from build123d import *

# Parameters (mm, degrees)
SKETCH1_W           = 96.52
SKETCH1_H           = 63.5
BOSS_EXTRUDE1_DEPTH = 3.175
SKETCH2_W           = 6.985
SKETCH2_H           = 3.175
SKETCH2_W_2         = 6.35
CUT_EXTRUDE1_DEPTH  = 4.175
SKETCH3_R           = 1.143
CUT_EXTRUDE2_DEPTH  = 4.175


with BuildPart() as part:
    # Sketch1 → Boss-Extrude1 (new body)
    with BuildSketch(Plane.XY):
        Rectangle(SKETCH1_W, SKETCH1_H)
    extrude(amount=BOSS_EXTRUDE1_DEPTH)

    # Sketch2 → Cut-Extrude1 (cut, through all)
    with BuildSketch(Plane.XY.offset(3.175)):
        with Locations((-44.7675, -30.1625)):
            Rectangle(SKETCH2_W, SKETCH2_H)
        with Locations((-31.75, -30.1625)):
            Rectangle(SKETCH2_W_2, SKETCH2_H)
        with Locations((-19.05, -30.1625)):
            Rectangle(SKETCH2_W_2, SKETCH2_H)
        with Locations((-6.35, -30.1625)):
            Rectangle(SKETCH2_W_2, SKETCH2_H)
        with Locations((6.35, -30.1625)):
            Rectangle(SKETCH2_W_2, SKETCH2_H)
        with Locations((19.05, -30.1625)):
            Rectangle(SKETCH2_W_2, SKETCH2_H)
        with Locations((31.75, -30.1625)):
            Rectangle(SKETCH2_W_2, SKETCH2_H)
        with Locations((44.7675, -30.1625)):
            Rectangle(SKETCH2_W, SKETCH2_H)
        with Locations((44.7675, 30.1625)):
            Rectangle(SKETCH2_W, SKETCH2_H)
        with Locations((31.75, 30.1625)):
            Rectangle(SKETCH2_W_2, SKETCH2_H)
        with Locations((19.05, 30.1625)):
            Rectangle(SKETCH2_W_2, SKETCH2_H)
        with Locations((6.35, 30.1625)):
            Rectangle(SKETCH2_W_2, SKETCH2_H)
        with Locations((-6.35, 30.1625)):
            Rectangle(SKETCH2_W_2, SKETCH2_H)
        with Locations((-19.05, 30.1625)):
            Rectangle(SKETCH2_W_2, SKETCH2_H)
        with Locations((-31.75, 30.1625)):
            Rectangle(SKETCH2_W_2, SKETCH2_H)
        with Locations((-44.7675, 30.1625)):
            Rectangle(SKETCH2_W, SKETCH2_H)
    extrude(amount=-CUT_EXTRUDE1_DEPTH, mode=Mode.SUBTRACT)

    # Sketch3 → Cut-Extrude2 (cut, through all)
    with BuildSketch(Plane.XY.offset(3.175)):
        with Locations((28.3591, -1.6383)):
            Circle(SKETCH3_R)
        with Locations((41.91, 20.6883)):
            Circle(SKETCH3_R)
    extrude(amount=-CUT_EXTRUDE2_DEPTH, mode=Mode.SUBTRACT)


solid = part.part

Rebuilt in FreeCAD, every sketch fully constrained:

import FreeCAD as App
import Part
import Sketcher
from FreeCAD import Vector
Q = App.Units.Quantity


def add_polygon(sketch, points):
    """Adds a closed chain of lines whose ends are joined by coincident constraints."""
    first, n = sketch.GeometryCount, len(points)
    for a, b in zip(points, points[1:] + points[:1]):
        sketch.addGeometry(Part.LineSegment(App.Vector(*a, 0), App.Vector(*b, 0)), False)
    for i in range(n):
        sketch.addConstraint(Sketcher.Constraint("Coincident", first + i, 2, first + (i + 1) % n, 1))

doc = App.newDocument("Part")
body = doc.addObject("PartDesign::Body", "Body")

# Sketch on XY plane
sketch1 = doc.addObject("Sketcher::SketchObject", "Sketch")
body.addObject(sketch1)
sketch1.AttachmentSupport = (doc.XY_Plane, [""])
sketch1.MapMode = "FlatFace"
add_polygon(sketch1, [(-48.26, 31.75), (-48.26, -31.75), (48.26, -31.75), (48.26, 31.75)])  # lines 0-3
sketch1.addConstraint(Sketcher.Constraint("Vertical", 0))
sketch1.addConstraint(Sketcher.Constraint("Horizontal", 1))
sketch1.addConstraint(Sketcher.Constraint("Vertical", 2))
sketch1.addConstraint(Sketcher.Constraint("Horizontal", 3))
sketch1.addConstraint(Sketcher.Constraint("Symmetric", 0, 2, 2, 2, -1, 1))
sketch1.addConstraint(Sketcher.Constraint("DistanceX", 1, 1, 1, 2, Q("3.8 in")))
sketch1.addConstraint(Sketcher.Constraint("DistanceY", 0, 2, 0, 1, Q("2.5 in")))
pad1 = doc.addObject("PartDesign::Pad", "Pad")
body.addObject(pad1)
pad1.Profile = sketch1
pad1.Length = Q("0.125 in")

# Sketch on XY plane
sketch2 = doc.addObject("Sketcher::SketchObject", "Sketch001")
body.addObject(sketch2)
sketch2.AttachmentSupport = (doc.XY_Plane, [""])
sketch2.MapMode = "FlatFace"
sketch2.AttachmentOffset = App.Placement(Vector(0, 0, 0.125 * 25.4), App.Rotation())
add_polygon(sketch2, [(-48.26, -28.575), (-48.26, -31.75), (-41.275, -31.75), (-41.275, -28.575)])  # lines 0-3
add_polygon(sketch2, [(-34.925, -28.575), (-34.925, -31.75), (-28.575, -31.75), (-28.575, -28.575)])  # lines 4-7
add_polygon(sketch2, [(-22.225, -28.575), (-22.225, -31.75), (-15.875, -31.75), (-15.875, -28.575)])  # lines 8-11
add_polygon(sketch2, [(-9.525, -28.575), (-9.525, -31.75), (-3.175, -31.75), (-3.175, -28.575)])  # lines 12-15
add_polygon(sketch2, [(3.175, -28.575), (3.175, -31.75), (9.525, -31.75), (9.525, -28.575)])  # lines 16-19
add_polygon(sketch2, [(15.875, -28.575), (15.875, -31.75), (22.225, -31.75), (22.225, -28.575)])  # lines 20-23
add_polygon(sketch2, [(28.575, -28.575), (28.575, -31.75), (34.925, -31.75), (34.925, -28.575)])  # lines 24-27
add_polygon(sketch2, [(41.275, -28.575), (41.275, -31.75), (48.26, -31.75), (48.26, -28.575)])  # lines 28-31
add_polygon(sketch2, [(41.275, 31.75), (41.275, 28.575), (48.26, 28.575), (48.26, 31.75)])  # lines 32-35
add_polygon(sketch2, [(28.575, 31.75), (28.575, 28.575), (34.925, 28.575), (34.925, 31.75)])  # lines 36-39
add_polygon(sketch2, [(15.875, 31.75), (15.875, 28.575), (22.225, 28.575), (22.225, 31.75)])  # lines 40-43
add_polygon(sketch2, [(3.175, 31.75), (3.175, 28.575), (9.525, 28.575), (9.525, 31.75)])  # lines 44-47
add_polygon(sketch2, [(-9.525, 31.75), (-9.525, 28.575), (-3.175, 28.575), (-3.175, 31.75)])  # lines 48-51
add_polygon(sketch2, [(-22.225, 31.75), (-22.225, 28.575), (-15.875, 28.575), (-15.875, 31.75)])  # lines 52-55
add_polygon(sketch2, [(-34.925, 31.75), (-34.925, 28.575), (-28.575, 28.575), (-28.575, 31.75)])  # lines 56-59
add_polygon(sketch2, [(-48.26, 31.75), (-48.26, 28.575), (-41.275, 28.575), (-41.275, 31.75)])  # lines 60-63
sketch2.addConstraint(Sketcher.Constraint("Vertical", 0))
sketch2.addConstraint(Sketcher.Constraint("Horizontal", 1))
sketch2.addConstraint(Sketcher.Constraint("Vertical", 2))
sketch2.addConstraint(Sketcher.Constraint("Horizontal", 3))
sketch2.addConstraint(Sketcher.Constraint("Vertical", 4))
sketch2.addConstraint(Sketcher.Constraint("Horizontal", 5))
sketch2.addConstraint(Sketcher.Constraint("Vertical", 6))
sketch2.addConstraint(Sketcher.Constraint("Horizontal", 7))
sketch2.addConstraint(Sketcher.Constraint("Vertical", 8))
sketch2.addConstraint(Sketcher.Constraint("Horizontal", 9))
sketch2.addConstraint(Sketcher.Constraint("Vertical", 10))
sketch2.addConstraint(Sketcher.Constraint("Horizontal", 11))
sketch2.addConstraint(Sketcher.Constraint("Vertical", 12))
sketch2.addConstraint(Sketcher.Constraint("Horizontal", 13))
sketch2.addConstraint(Sketcher.Constraint("Vertical", 14))
sketch2.addConstraint(Sketcher.Constraint("Horizontal", 15))
sketch2.addConstraint(Sketcher.Constraint("Vertical", 16))
sketch2.addConstraint(Sketcher.Constraint("Horizontal", 17))
sketch2.addConstraint(Sketcher.Constraint("Vertical", 18))
sketch2.addConstraint(Sketcher.Constraint("Horizontal", 19))
sketch2.addConstraint(Sketcher.Constraint("Vertical", 20))
sketch2.addConstraint(Sketcher.Constraint("Horizontal", 21))
sketch2.addConstraint(Sketcher.Constraint("Vertical", 22))
sketch2.addConstraint(Sketcher.Constraint("Horizontal", 23))
sketch2.addConstraint(Sketcher.Constraint("Vertical", 24))
sketch2.addConstraint(Sketcher.Constraint("Horizontal", 25))
sketch2.addConstraint(Sketcher.Constraint("Vertical", 26))
sketch2.addConstraint(Sketcher.Constraint("Horizontal", 27))
sketch2.addConstraint(Sketcher.Constraint("Vertical", 28))
sketch2.addConstraint(Sketcher.Constraint("Horizontal", 29))
sketch2.addConstraint(Sketcher.Constraint("Vertical", 30))
sketch2.addConstraint(Sketcher.Constraint("Horizontal", 31))
sketch2.addConstraint(Sketcher.Constraint("Vertical", 32))
sketch2.addConstraint(Sketcher.Constraint("Horizontal", 33))
sketch2.addConstraint(Sketcher.Constraint("Vertical", 34))
sketch2.addConstraint(Sketcher.Constraint("Horizontal", 35))
sketch2.addConstraint(Sketcher.Constraint("Vertical", 36))
sketch2.addConstraint(Sketcher.Constraint("Horizontal", 37))
sketch2.addConstraint(Sketcher.Constraint("Vertical", 38))
sketch2.addConstraint(Sketcher.Constraint("Horizontal", 39))
sketch2.addConstraint(Sketcher.Constraint("Vertical", 40))
sketch2.addConstraint(Sketcher.Constraint("Horizontal", 41))
sketch2.addConstraint(Sketcher.Constraint("Vertical", 42))
sketch2.addConstraint(Sketcher.Constraint("Horizontal", 43))
sketch2.addConstraint(Sketcher.Constraint("Vertical", 44))
sketch2.addConstraint(Sketcher.Constraint("Horizontal", 45))
sketch2.addConstraint(Sketcher.Constraint("Vertical", 46))
sketch2.addConstraint(Sketcher.Constraint("Horizontal", 47))
sketch2.addConstraint(Sketcher.Constraint("Vertical", 48))
sketch2.addConstraint(Sketcher.Constraint("Horizontal", 49))
sketch2.addConstraint(Sketcher.Constraint("Vertical", 50))
sketch2.addConstraint(Sketcher.Constraint("Horizontal", 51))
sketch2.addConstraint(Sketcher.Constraint("Vertical", 52))
sketch2.addConstraint(Sketcher.Constraint("Horizontal", 53))
sketch2.addConstraint(Sketcher.Constraint("Vertical", 54))
sketch2.addConstraint(Sketcher.Constraint("Horizontal", 55))
sketch2.addConstraint(Sketcher.Constraint("Vertical", 56))
sketch2.addConstraint(Sketcher.Constraint("Horizontal", 57))
sketch2.addConstraint(Sketcher.Constraint("Vertical", 58))
sketch2.addConstraint(Sketcher.Constraint("Horizontal", 59))
sketch2.addConstraint(Sketcher.Constraint("Vertical", 60))
sketch2.addConstraint(Sketcher.Constraint("Horizontal", 61))
sketch2.addConstraint(Sketcher.Constraint("Vertical", 62))
sketch2.addConstraint(Sketcher.Constraint("Horizontal", 63))
sketch2.addConstraint(Sketcher.Constraint("Symmetric", 2, 2, 32, 2, -1, 1))
sketch2.addConstraint(Sketcher.Constraint("Symmetric", 0, 2, 34, 2, -1, 1))
sketch2.addConstraint(Sketcher.Constraint("Symmetric", 6, 2, 36, 2, -1, 1))
sketch2.addConstraint(Sketcher.Constraint("Symmetric", 4, 2, 38, 2, -1, 1))
sketch2.addConstraint(Sketcher.Constraint("Symmetric", 10, 2, 40, 2, -1, 1))
sketch2.addConstraint(Sketcher.Constraint("Symmetric", 8, 2, 42, 2, -1, 1))
sketch2.addConstraint(Sketcher.Constraint("Symmetric", 14, 2, 44, 2, -1, 1))
sketch2.addConstraint(Sketcher.Constraint("Symmetric", 12, 2, 46, 2, -1, 1))
sketch2.addConstraint(Sketcher.Constraint("Symmetric", 18, 2, 48, 2, -1, 1))
sketch2.addConstraint(Sketcher.Constraint("Symmetric", 16, 2, 50, 2, -1, 1))
sketch2.addConstraint(Sketcher.Constraint("Symmetric", 22, 2, 52, 2, -1, 1))
sketch2.addConstraint(Sketcher.Constraint("Symmetric", 20, 2, 54, 2, -1, 1))
sketch2.addConstraint(Sketcher.Constraint("Symmetric", 26, 2, 56, 2, -1, 1))
sketch2.addConstraint(Sketcher.Constraint("Symmetric", 24, 2, 58, 2, -1, 1))
sketch2.addConstraint(Sketcher.Constraint("Symmetric", 30, 2, 60, 2, -1, 1))
sketch2.addConstraint(Sketcher.Constraint("Symmetric", 28, 2, 62, 2, -1, 1))
sketch2.addConstraint(Sketcher.Constraint("Symmetric", 13, 2, 16, 2, -2))
sketch2.addConstraint(Sketcher.Constraint("Symmetric", 15, 2, 18, 2, -2))
sketch2.addConstraint(Sketcher.Constraint("Symmetric", 9, 2, 20, 2, -2))
sketch2.addConstraint(Sketcher.Constraint("Symmetric", 11, 2, 22, 2, -2))
sketch2.addConstraint(Sketcher.Constraint("Symmetric", 5, 2, 24, 2, -2))
sketch2.addConstraint(Sketcher.Constraint("Symmetric", 7, 2, 26, 2, -2))
sketch2.addConstraint(Sketcher.Constraint("Symmetric", 1, 2, 28, 2, -2))
sketch2.addConstraint(Sketcher.Constraint("Symmetric", 3, 2, 30, 2, -2))
sketch2.addConstraint(Sketcher.Constraint("Horizontal", 1, 2, 4, 2))
sketch2.addConstraint(Sketcher.Constraint("Horizontal", 3, 2, 6, 2))
sketch2.addConstraint(Sketcher.Constraint("Horizontal", 5, 2, 8, 2))
sketch2.addConstraint(Sketcher.Constraint("Horizontal", 7, 2, 10, 2))
sketch2.addConstraint(Sketcher.Constraint("Horizontal", 9, 2, 12, 2))
sketch2.addConstraint(Sketcher.Constraint("Horizontal", 11, 2, 14, 2))
sketch2.addConstraint(Sketcher.Constraint("Equal", 7, 9))
sketch2.addConstraint(Sketcher.Constraint("Equal", 11, 13))
sketch2.addConstraint(Sketcher.Constraint("DistanceX", 5, 1, 5, 2, Q("0.25 in")))
sketch2.addConstraint(Sketcher.Constraint("DistanceX", 0, 2, -1, 1, Q("1.9 in")))
sketch2.addConstraint(Sketcher.Constraint("DistanceX", 1, 1, 1, 2, Q("0.275 in")))
sketch2.addConstraint(Sketcher.Constraint("DistanceY", 0, 2, 0, 1, Q("0.125 in")))
sketch2.addConstraint(Sketcher.Constraint("DistanceY", 0, 2, -1, 1, Q("1.25 in")))
sketch2.addConstraint(Sketcher.Constraint("DistanceX", 4, 2, -1, 1, Q("1.375 in")))
sketch2.addConstraint(Sketcher.Constraint("DistanceX", 8, 2, -1, 1, Q("0.875 in")))
sketch2.addConstraint(Sketcher.Constraint("DistanceX", 12, 2, -1, 1, Q("0.375 in")))
pocket1 = doc.addObject("PartDesign::Pocket", "Pocket")
body.addObject(pocket1)
pocket1.Profile = sketch2
pocket1.Type = "ThroughAll"

# Sketch on XY plane
sketch3 = doc.addObject("Sketcher::SketchObject", "Sketch002")
body.addObject(sketch3)
sketch3.AttachmentSupport = (doc.XY_Plane, [""])
sketch3.MapMode = "FlatFace"
sketch3.AttachmentOffset = App.Placement(Vector(0, 0, 0.125 * 25.4), App.Rotation())
sketch3.addGeometry(Part.Circle(Vector(28.3591, -1.6383, 0), Vector(0, 0, 1), 1.143), False)
sketch3.addGeometry(Part.Circle(Vector(41.91, 20.6883, 0), Vector(0, 0, 1), 1.143), False)
sketch3.addConstraint(Sketcher.Constraint("Equal", 0, 1))
sketch3.addConstraint(Sketcher.Constraint("Diameter", 0, Q("0.09 in")))
sketch3.addConstraint(Sketcher.Constraint("DistanceX", -1, 1, 1, 3, Q("1.65 in")))
sketch3.addConstraint(Sketcher.Constraint("DistanceY", 0, 3, 1, 3, Q("0.879 in")))
sketch3.addConstraint(Sketcher.Constraint("DistanceX", -1, 1, 0, 3, Q("1.1165 in")))
sketch3.addConstraint(Sketcher.Constraint("DistanceY", 0, 3, -1, 1, Q("0.0645 in")))
pocket2 = doc.addObject("PartDesign::Pocket", "Pocket001")
body.addObject(pocket2)
pocket2.Profile = sketch3
pocket2.Type = "ThroughAll"

doc.recompute()
